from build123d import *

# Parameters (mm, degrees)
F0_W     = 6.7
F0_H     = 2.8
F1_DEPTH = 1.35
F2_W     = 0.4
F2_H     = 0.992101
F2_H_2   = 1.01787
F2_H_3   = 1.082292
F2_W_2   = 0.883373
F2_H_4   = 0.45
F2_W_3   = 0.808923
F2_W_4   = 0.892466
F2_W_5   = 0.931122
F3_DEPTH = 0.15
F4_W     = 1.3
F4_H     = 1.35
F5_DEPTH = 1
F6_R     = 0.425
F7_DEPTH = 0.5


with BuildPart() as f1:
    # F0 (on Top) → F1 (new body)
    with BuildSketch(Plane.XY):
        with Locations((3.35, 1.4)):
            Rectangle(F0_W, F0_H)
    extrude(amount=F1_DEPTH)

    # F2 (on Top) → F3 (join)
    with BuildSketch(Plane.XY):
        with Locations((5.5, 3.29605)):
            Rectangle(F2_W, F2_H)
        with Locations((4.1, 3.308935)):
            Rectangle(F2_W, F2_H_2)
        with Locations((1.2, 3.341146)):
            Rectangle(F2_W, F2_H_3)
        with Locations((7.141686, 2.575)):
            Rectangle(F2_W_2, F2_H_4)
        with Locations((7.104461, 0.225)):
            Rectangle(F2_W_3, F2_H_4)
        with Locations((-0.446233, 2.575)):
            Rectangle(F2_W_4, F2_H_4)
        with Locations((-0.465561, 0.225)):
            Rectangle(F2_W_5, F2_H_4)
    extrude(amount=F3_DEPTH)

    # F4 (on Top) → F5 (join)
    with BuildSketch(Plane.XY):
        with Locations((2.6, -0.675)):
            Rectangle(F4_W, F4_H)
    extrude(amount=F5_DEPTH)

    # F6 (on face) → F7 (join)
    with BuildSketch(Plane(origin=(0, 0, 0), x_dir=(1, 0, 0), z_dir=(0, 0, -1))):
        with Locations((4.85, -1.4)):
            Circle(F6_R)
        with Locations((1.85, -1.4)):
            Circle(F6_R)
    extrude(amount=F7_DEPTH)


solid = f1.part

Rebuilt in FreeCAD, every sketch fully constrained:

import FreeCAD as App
import Part
import Sketcher

V = App.Vector


def add_polygon(sketch, points):
    """Adds a closed chain of lines whose ends are joined by coincident constraints."""
    first, n = sketch.GeometryCount, len(points)
    for a, b in zip(points, points[1:] + points[:1]):
        sketch.addGeometry(Part.LineSegment(App.Vector(*a, 0), App.Vector(*b, 0)), False)
    for i in range(n):
        sketch.addConstraint(Sketcher.Constraint("Coincident", first + i, 2, first + (i + 1) % n, 1))

doc = App.newDocument("Part")
body = doc.addObject("PartDesign::Body", "Body")

# Sketch on XY plane
sketch1 = body.newObject("Sketcher::SketchObject", "Sketch")
sketch1.AttachmentSupport = (doc.getObject("XY_Plane"), [""])
sketch1.MapMode = "FlatFace"
add_polygon(sketch1, [(0, 2.8), (0, 0), (6.7, 0), (6.7, 2.8)])  # lines 0-3
sketch1.addConstraint(Sketcher.Constraint("Vertical", 0))
sketch1.addConstraint(Sketcher.Constraint("Horizontal", 1))
sketch1.addConstraint(Sketcher.Constraint("Vertical", 2))
sketch1.addConstraint(Sketcher.Constraint("Horizontal", 3))
sketch1.addConstraint(Sketcher.Constraint("Coincident", 0, 2, -1, 1))
sketch1.addConstraint(Sketcher.Constraint("DistanceX", 1, 1, 1, 2, 6.7))
sketch1.addConstraint(Sketcher.Constraint("DistanceY", 0, 2, 0, 1, 2.8))
pad1 = body.newObject("PartDesign::Pad", "Pad")
pad1.Profile = sketch1
pad1.Length = 1.35

# Sketch on XY plane
sketch2 = body.newObject("Sketcher::SketchObject", "Sketch001")
sketch2.AttachmentSupport = (doc.getObject("XY_Plane"), [""])
sketch2.MapMode = "FlatFace"
add_polygon(sketch2, [(5.3, 3.792101), (5.3, 2.8), (5.7, 2.8), (5.7, 3.792101)])  # lines 0-3
add_polygon(sketch2, [(3.9, 3.81787), (3.9, 2.8), (4.3, 2.8), (4.3, 3.81787)])  # lines 4-7
add_polygon(sketch2, [(1, 3.882292), (1, 2.8), (1.4, 2.8), (1.4, 3.882292)])  # lines 8-11
add_polygon(sketch2, [(6.699999, 2.8), (6.699999, 2.35), (7.583373, 2.35), (7.583373, 2.8)])  # lines 12-15
add_polygon(sketch2, [(6.699999, 0.45), (6.699999, 0), (7.508922, 0), (7.508922, 0.45)])  # lines 16-19
add_polygon(sketch2, [(-0.892466, 2.8), (-0.892466, 2.35), (0, 2.35), (0, 2.8)])  # lines 20-23
add_polygon(sketch2, [(-0.931122, 0.45), (-0.931122, 0), (0, 0), (0, 0.45)])  # lines 24-27
sketch2.addConstraint(Sketcher.Constraint("Vertical", 0))
sketch2.addConstraint(Sketcher.Constraint("Horizontal", 1))
sketch2.addConstraint(Sketcher.Constraint("Vertical", 2))
sketch2.addConstraint(Sketcher.Constraint("Horizontal", 3))
sketch2.addConstraint(Sketcher.Constraint("Vertical", 4))
sketch2.addConstraint(Sketcher.Constraint("Horizontal", 5))
sketch2.addConstraint(Sketcher.Constraint("Vertical", 6))
sketch2.addConstraint(Sketcher.Constraint("Horizontal", 7))
sketch2.addConstraint(Sketcher.Constraint("Vertical", 8))
sketch2.addConstraint(Sketcher.Constraint("Horizontal", 9))
sketch2.addConstraint(Sketcher.Constraint("Vertical", 10))
sketch2.addConstraint(Sketcher.Constraint("Horizontal", 11))
sketch2.addConstraint(Sketcher.Constraint("Vertical", 12))
sketch2.addConstraint(Sketcher.Constraint("Horizontal", 13))
sketch2.addConstraint(Sketcher.Constraint("Vertical", 14))
sketch2.addConstraint(Sketcher.Constraint("Horizontal", 15))
sketch2.addConstraint(Sketcher.Constraint("Vertical", 16))
sketch2.addConstraint(Sketcher.Constraint("Horizontal", 17))
sketch2.addConstraint(Sketcher.Constraint("Vertical", 18))
sketch2.addConstraint(Sketcher.Constraint("Horizontal", 19))
sketch2.addConstraint(Sketcher.Constraint("Vertical", 20))
sketch2.addConstraint(Sketcher.Constraint("Horizontal", 21))
sketch2.addConstraint(Sketcher.Constraint("Vertical", 22))
sketch2.addConstraint(Sketcher.Constraint("Horizontal", 23))
sketch2.addConstraint(Sketcher.Constraint("Vertical", 24))
sketch2.addConstraint(Sketcher.Constraint("Horizontal", 25))
sketch2.addConstraint(Sketcher.Constraint("Vertical", 26))
sketch2.addConstraint(Sketcher.Constraint("Horizontal", 27))
sketch2.addConstraint(Sketcher.Constraint("Coincident", 25, 2, -1, 1))
sketch2.addConstraint(Sketcher.Constraint("PointOnObject", 16, 2, -1))
sketch2.addConstraint(Sketcher.Constraint("PointOnObject", 21, 2, -2))
sketch2.addConstraint(Sketcher.Constraint("Horizontal", 1, 2, 4, 2))
sketch2.addConstraint(Sketcher.Constraint("Horizontal", 5, 2, 8, 2))
sketch2.addConstraint(Sketcher.Constraint("Horizontal", 9, 2, 14, 2))
sketch2.addConstraint(Sketcher.Constraint("Horizontal", 13, 2, 20, 2))
sketch2.addConstraint(Sketcher.Constraint("Horizontal", 15, 2, 22, 2))
sketch2.addConstraint(Sketcher.Constraint("Horizontal", 19, 2, 26, 2))
sketch2.addConstraint(Sketcher.Constraint("Vertical", 15, 2, 16, 2))
sketch2.addConstraint(Sketcher.Constraint("Equal", 3, 5))
sketch2.addConstraint(Sketcher.Constraint("Equal", 7, 9))
sketch2.addConstraint(Sketcher.Constraint("Equal", 14, 16))
sketch2.addConstraint(Sketcher.Constraint("DistanceX", 1, 1, 1, 2, 0.4))
sketch2.addConstraint(Sketcher.Constraint("DistanceX", -1, 1, 8, 2, 1.0))
sketch2.addConstraint(Sketcher.Constraint("DistanceX", 5, 2, 0, 2, 1.0))
sketch2.addConstraint(Sketcher.Constraint("DistanceX", 1, 2, 12, 2, 0.999999))
sketch2.addConstraint(Sketcher.Constraint("DistanceY", 12, 2, 12, 1, 0.45))
sketch2.addConstraint(Sketcher.Constraint("DistanceX", -1, 1, 0, 2, 5.3))
sketch2.addConstraint(Sketcher.Constraint("DistanceY", -1, 1, 0, 2, 2.8))
sketch2.addConstraint(Sketcher.Constraint("DistanceY", 0, 2, 0, 1, 0.992101))
sketch2.addConstraint(Sketcher.Constraint("DistanceY", 4, 2, 4, 1, 1.01787))
sketch2.addConstraint(Sketcher.Constraint("DistanceX", 13, 1, 13, 2, 0.883373))
sketch2.addConstraint(Sketcher.Constraint("DistanceX", 17, 1, 17, 2, 0.808923))
sketch2.addConstraint(Sketcher.Constraint("DistanceX", 21, 1, 21, 2, 0.892466))
sketch2.addConstraint(Sketcher.Constraint("DistanceX", 25, 1, 25, 2, 0.931122))
sketch2.addConstraint(Sketcher.Constraint("DistanceY", 8, 2, 8, 1, 1.082292))
pad2 = body.newObject("PartDesign::Pad", "Pad001")
pad2.Profile = sketch2
pad2.Length = 0.15

# Sketch on XY plane
sketch3 = body.newObject("Sketcher::SketchObject", "Sketch002")
sketch3.AttachmentSupport = (doc.getObject("XY_Plane"), [""])
sketch3.MapMode = "FlatFace"
add_polygon(sketch3, [(1.95, 0), (1.95, -1.35), (3.25, -1.35), (3.25, 0)])  # lines 0-3
sketch3.addConstraint(Sketcher.Constraint("Vertical", 0))
sketch3.addConstraint(Sketcher.Constraint("Horizontal", 1))
sketch3.addConstraint(Sketcher.Constraint("Vertical", 2))
sketch3.addConstraint(Sketcher.Constraint("Horizontal", 3))
sketch3.addConstraint(Sketcher.Constraint("PointOnObject", 2, 2, -1))
sketch3.addConstraint(Sketcher.Constraint("DistanceX", 1, 1, 1, 2, 1.3))
sketch3.addConstraint(Sketcher.Constraint("DistanceY", 0, 2, 0, 1, 1.35))
sketch3.addConstraint(Sketcher.Constraint("DistanceX", -1, 1, 0, 2, 1.95))
pad3 = body.newObject("PartDesign::Pad", "Pad002")
pad3.Profile = sketch3
pad3.Length = 1

# Sketch on XY plane
sketch4 = body.newObject("Sketcher::SketchObject", "Sketch003")
sketch4.AttachmentSupport = (doc.getObject("XY_Plane"), [""])
sketch4.MapMode = "FlatFace"
sketch4.addGeometry(Part.Circle(V(4.85, 1.4, 0), V(0, 0, 1), 0.425), False)
sketch4.addGeometry(Part.Circle(V(1.85, 1.4, 0), V(0, 0, 1), 0.425), False)
sketch4.addConstraint(Sketcher.Constraint("Equal", 0, 1))
sketch4.addConstraint(Sketcher.Constraint("Horizontal", 0, 3, 1, 3))
sketch4.addConstraint(Sketcher.Constraint("Diameter", 0, 0.85))
sketch4.addConstraint(Sketcher.Constraint("DistanceX", 1, 3, 0, 3, 3.0))
sketch4.addConstraint(Sketcher.Constraint("DistanceY", -1, 1, 0, 3, 1.4))
sketch4.addConstraint(Sketcher.Constraint("DistanceX", -1, 1, 0, 3, 4.85))
pad4 = body.newObject("PartDesign::Pad", "Pad003")
pad4.Profile = sketch4
pad4.Length = 0.5
pad4.Reversed = True

doc.recompute()
